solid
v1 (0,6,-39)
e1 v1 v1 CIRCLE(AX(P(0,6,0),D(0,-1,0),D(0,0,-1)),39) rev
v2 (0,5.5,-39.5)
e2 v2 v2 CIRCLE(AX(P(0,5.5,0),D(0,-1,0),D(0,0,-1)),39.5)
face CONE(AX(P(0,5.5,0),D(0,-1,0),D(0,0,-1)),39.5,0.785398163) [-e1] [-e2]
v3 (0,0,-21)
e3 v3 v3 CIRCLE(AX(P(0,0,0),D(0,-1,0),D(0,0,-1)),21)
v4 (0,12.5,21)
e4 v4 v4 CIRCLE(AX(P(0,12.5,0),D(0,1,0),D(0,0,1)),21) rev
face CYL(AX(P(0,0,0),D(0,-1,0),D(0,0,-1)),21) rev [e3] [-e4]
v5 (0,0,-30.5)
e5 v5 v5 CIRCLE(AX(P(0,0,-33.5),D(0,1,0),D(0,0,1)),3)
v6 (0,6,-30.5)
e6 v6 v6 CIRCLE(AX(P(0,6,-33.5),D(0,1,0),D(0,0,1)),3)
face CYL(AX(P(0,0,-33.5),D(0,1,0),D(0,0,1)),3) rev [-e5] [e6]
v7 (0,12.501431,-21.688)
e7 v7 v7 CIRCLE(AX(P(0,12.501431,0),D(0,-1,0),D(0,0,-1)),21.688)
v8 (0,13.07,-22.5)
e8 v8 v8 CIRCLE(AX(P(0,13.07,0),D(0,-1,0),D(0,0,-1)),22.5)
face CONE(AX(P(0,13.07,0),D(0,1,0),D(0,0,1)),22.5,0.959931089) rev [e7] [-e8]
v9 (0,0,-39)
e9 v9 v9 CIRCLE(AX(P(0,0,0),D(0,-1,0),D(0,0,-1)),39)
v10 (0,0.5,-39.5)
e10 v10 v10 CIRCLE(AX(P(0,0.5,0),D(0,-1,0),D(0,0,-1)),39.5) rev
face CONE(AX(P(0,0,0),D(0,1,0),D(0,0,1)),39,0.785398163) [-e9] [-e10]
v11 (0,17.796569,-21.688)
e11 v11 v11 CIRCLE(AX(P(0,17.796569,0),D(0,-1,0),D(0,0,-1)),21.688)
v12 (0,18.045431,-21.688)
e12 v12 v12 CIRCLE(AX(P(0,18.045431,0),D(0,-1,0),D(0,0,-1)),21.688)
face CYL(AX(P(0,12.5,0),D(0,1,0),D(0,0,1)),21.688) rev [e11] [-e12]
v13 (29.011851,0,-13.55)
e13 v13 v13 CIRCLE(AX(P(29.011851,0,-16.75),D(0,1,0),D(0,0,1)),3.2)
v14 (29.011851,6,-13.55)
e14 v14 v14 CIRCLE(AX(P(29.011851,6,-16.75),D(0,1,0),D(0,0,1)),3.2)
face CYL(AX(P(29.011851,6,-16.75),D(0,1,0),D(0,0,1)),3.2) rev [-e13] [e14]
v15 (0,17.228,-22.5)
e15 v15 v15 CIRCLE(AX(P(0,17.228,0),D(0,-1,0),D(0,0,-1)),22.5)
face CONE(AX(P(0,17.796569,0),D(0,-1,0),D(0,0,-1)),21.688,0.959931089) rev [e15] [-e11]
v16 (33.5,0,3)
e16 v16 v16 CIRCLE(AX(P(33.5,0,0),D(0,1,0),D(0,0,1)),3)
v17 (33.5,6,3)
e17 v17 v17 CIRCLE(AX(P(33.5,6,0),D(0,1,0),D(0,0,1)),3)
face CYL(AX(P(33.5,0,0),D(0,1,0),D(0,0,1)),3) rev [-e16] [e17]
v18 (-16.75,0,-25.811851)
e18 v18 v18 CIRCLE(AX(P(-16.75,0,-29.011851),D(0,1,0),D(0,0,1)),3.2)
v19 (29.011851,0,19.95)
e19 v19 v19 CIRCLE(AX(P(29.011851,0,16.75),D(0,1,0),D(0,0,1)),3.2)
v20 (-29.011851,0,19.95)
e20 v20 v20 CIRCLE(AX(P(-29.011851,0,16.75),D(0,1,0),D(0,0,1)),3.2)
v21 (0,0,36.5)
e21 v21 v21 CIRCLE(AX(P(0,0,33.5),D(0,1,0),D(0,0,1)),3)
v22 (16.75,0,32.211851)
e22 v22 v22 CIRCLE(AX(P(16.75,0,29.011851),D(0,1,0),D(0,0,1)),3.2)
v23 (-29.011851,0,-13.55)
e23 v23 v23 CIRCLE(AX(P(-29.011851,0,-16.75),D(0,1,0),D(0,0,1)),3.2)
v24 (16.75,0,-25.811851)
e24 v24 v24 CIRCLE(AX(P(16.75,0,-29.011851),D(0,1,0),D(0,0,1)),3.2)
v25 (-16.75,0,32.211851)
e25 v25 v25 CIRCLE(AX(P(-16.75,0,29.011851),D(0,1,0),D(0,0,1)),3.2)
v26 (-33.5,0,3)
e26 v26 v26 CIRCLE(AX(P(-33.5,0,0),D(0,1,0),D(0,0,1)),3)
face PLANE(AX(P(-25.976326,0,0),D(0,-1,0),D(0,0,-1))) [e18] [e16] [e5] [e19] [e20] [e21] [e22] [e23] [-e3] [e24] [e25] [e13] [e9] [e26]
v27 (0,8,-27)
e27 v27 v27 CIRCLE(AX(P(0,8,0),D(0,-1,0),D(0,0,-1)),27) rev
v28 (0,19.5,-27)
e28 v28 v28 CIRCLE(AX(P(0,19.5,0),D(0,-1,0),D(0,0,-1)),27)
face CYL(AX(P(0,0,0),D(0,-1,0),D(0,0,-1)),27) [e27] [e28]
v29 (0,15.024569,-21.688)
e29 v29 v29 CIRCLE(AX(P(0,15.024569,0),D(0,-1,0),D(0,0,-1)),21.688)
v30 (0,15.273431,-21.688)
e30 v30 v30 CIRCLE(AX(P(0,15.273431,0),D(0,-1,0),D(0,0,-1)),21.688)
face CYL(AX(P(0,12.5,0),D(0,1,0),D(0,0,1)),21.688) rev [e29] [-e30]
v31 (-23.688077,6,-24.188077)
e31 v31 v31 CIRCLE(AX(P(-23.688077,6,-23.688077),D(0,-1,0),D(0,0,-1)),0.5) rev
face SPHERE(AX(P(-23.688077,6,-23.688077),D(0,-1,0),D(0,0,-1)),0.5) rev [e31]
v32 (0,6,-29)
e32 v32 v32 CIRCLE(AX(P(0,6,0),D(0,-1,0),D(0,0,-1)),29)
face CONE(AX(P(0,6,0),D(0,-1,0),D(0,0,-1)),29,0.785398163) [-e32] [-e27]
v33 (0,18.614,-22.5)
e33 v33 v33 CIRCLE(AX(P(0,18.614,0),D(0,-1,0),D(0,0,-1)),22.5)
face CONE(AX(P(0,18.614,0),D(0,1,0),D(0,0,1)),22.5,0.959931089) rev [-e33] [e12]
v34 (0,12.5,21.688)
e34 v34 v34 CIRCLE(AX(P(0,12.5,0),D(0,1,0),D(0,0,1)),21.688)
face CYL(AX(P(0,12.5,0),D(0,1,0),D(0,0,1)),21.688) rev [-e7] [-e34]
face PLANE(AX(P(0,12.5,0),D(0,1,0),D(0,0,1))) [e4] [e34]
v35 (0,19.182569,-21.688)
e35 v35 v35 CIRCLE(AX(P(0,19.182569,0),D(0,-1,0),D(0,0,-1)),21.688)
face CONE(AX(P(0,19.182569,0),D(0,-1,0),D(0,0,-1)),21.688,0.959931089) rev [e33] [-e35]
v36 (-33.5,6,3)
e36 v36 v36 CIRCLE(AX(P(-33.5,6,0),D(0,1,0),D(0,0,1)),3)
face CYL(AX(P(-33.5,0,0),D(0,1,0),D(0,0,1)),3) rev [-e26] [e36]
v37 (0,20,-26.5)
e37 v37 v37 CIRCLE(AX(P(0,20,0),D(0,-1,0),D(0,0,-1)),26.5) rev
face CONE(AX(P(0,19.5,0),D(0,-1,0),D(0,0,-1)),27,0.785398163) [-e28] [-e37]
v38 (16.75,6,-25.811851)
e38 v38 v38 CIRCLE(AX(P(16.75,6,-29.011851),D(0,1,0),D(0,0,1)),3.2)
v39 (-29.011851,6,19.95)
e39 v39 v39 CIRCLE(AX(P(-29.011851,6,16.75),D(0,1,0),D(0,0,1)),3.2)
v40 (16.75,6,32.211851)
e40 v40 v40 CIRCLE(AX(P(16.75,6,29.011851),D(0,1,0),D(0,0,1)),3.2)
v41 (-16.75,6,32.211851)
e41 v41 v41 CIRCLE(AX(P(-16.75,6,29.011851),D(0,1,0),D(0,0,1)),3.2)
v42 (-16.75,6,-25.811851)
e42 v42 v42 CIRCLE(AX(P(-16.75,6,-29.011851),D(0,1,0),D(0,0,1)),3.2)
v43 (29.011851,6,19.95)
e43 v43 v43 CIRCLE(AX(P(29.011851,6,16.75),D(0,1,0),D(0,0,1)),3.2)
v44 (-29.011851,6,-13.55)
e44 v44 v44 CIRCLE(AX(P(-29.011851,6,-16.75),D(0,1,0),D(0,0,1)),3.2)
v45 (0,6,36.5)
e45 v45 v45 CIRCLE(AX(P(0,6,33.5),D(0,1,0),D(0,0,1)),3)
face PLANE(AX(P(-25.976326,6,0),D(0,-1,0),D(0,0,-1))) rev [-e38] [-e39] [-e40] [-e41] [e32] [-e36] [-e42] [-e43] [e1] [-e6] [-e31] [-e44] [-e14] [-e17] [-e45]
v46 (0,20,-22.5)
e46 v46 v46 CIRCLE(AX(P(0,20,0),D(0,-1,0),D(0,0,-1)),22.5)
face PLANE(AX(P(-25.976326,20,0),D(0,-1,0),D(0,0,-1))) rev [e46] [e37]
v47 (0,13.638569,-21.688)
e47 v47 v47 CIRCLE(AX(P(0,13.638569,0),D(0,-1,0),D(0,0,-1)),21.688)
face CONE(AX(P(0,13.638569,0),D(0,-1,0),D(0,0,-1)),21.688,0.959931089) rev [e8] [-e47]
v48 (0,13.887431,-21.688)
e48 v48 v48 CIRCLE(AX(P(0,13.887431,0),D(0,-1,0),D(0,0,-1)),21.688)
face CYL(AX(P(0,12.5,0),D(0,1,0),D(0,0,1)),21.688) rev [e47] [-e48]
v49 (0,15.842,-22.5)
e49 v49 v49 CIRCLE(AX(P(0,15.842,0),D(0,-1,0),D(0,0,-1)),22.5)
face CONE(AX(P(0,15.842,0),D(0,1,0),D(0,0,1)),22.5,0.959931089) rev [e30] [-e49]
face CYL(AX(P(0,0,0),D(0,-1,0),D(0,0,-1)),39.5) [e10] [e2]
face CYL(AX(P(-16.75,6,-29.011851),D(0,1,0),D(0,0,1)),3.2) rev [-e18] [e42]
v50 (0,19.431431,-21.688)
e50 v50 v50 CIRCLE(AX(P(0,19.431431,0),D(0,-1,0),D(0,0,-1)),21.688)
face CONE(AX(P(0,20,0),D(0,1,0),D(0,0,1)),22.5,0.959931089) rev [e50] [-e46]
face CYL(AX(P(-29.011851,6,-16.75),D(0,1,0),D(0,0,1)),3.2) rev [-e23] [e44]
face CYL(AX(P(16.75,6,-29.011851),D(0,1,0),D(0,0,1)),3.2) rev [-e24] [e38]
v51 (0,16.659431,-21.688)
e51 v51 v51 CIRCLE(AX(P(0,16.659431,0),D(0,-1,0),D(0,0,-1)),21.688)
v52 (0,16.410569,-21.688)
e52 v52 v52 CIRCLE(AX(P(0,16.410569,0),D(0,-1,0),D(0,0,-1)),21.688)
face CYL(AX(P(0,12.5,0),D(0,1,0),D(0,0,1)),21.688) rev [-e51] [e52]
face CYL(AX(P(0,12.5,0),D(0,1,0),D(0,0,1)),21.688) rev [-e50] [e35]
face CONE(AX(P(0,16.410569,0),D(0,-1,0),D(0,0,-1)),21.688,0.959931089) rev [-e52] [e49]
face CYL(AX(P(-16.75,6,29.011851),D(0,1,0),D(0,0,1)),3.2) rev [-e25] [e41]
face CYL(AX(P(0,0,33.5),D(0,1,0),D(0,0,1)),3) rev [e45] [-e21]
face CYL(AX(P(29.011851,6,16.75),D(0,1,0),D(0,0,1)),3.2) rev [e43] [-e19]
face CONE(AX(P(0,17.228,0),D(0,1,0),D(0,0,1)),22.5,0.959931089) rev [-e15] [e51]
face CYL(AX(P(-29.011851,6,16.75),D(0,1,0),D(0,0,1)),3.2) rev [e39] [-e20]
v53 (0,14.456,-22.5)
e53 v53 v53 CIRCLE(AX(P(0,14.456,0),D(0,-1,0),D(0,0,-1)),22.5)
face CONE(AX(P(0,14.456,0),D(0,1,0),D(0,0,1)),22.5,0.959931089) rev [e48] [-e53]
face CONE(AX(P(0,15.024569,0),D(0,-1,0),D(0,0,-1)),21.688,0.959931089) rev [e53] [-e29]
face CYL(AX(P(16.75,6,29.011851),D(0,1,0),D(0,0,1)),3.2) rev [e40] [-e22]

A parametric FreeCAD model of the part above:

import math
import FreeCAD as App
import Part
import Sketcher
Q = App.Units.Quantity


def edges_at(feature, points):
    """Names of the edges that pass closest to the given points."""
    edges = feature.Shape.Edges
    near = lambda p: min(range(len(edges)), key=lambda i: edges[i].distToShape(Part.Vertex(*p))[0])
    return sorted({f"Edge{near(p) + 1}" for p in points})


def add_polygon(sketch, points):
    """Adds a closed chain of lines whose ends are joined by coincident constraints."""
    first, n = sketch.GeometryCount, len(points)
    for a, b in zip(points, points[1:] + points[:1]):
        sketch.addGeometry(Part.LineSegment(App.Vector(*a, 0), App.Vector(*b, 0)), False)
    for i in range(n):
        sketch.addConstraint(Sketcher.Constraint("Coincident", first + i, 2, first + (i + 1) % n, 1))

doc = App.newDocument("Part")
body = doc.addObject("PartDesign::Body", "Body")

# Sketch on XY plane
sketch1 = body.newObject("Sketcher::SketchObject", "Sketch")
sketch1.AttachmentSupport = (doc.getObject("XY_Plane"), [""])
sketch1.MapMode = "FlatFace"
add_polygon(sketch1, [(-40, 0), (-21, 0), (-21, 20), (-27, 20), (-27, 6), (-40, 6)])  # lines 0-5
sketch1.addConstraint(Sketcher.Constraint("Horizontal", 0))
sketch1.addConstraint(Sketcher.Constraint("Vertical", 1))
sketch1.addConstraint(Sketcher.Constraint("Horizontal", 2))
sketch1.addConstraint(Sketcher.Constraint("Vertical", 3))
sketch1.addConstraint(Sketcher.Constraint("Horizontal", 4))
sketch1.addConstraint(Sketcher.Constraint("Vertical", 5))
sketch1.addConstraint(Sketcher.Constraint("PointOnObject", 0, 2, -1))
sketch1.addConstraint(Sketcher.Constraint("Equal", 2, 5))
sketch1.addConstraint(Sketcher.Constraint("DistanceX", 2, 2, 2, 1, Q("6 mm")))
sketch1.addConstraint(Sketcher.Constraint("DistanceY", 1, 1, 1, 2, Q("20 mm")))
sketch1.addConstraint(Sketcher.Constraint("DistanceX", 0, 1, 0, 2, Q("18.5 mm")))
sketch1.addConstraint(Sketcher.Constraint("DistanceX", 0, 2, -1, 1, Q("21 mm")))
revolution = body.newObject("PartDesign::Revolution", "Revolution")
revolution.Profile = sketch1
revolution.ReferenceAxis = (sketch1, ["V_Axis"])
revolution.Angle = 360
doc.recompute()

chamfer = body.newObject("PartDesign::Chamfer", "Chamfer")
chamfer.Base = (revolution, edges_at(revolution, [(27, 6, 0)]))
chamfer.Size = 2
doc.recompute()

chamfer2 = body.newObject("PartDesign::Chamfer", "Chamfer001")
chamfer2.Base = (chamfer, edges_at(chamfer, [(39.5, 6, 0), (27, 20, 0), (39.5, 0, 0)]))
chamfer2.Size = 0.5

# Sketch on XZ plane
sketch2 = body.newObject("Sketcher::SketchObject", "Sketch001")
sketch2.AttachmentSupport = (doc.getObject("XZ_Plane"), [""])
sketch2.MapMode = "FlatFace"
sketch2.AttachmentOffset = App.Placement(App.Vector(0, 0, -6), App.Rotation())
sketch2.addGeometry(Part.Circle(App.Vector(-16.8, 29, 0), App.Vector(0, 0, 1), 3.2), False)
sketch2.addGeometry(Part.Circle(App.Vector(-29, -16.8, 0), App.Vector(0, 0, 1), 3.2), False)
sketch2.addGeometry(Part.Circle(App.Vector(16.8, -29, 0), App.Vector(0, 0, 1), 3.2), False)
sketch2.addGeometry(Part.Circle(App.Vector(29, 16.8, 0), App.Vector(0, 0, 1), 3.2), False)
sketch2.addGeometry(Part.Circle(App.Vector(-29, 16.8, 0), App.Vector(0, 0, 1), 3.2), False)
sketch2.addGeometry(Part.Circle(App.Vector(-16.8, -29, 0), App.Vector(0, 0, 1), 3.2), False)
sketch2.addGeometry(Part.Circle(App.Vector(29, -16.8, 0), App.Vector(0, 0, 1), 3.2), False)
sketch2.addGeometry(Part.Circle(App.Vector(16.8, 29, 0), App.Vector(0, 0, 1), 3.2), False)
sketch2.addConstraint(Sketcher.Constraint("Equal", 0, 1))
sketch2.addConstraint(Sketcher.Constraint("Equal", 1, 2))
sketch2.addConstraint(Sketcher.Constraint("Equal", 2, 3))
sketch2.addConstraint(Sketcher.Constraint("Equal", 3, 4))
sketch2.addConstraint(Sketcher.Constraint("Equal", 4, 5))
sketch2.addConstraint(Sketcher.Constraint("Equal", 5, 6))
sketch2.addConstraint(Sketcher.Constraint("Equal", 6, 7))
sketch2.addConstraint(Sketcher.Constraint("Symmetric", 0, 3, 2, 3, -1, 1))
sketch2.addConstraint(Sketcher.Constraint("Symmetric", 1, 3, 3, 3, -1, 1))
sketch2.addConstraint(Sketcher.Constraint("Symmetric", 4, 3, 6, 3, -1, 1))
sketch2.addConstraint(Sketcher.Constraint("Symmetric", 5, 3, 7, 3, -1, 1))
sketch2.addConstraint(Sketcher.Constraint("Symmetric", 3, 3, 4, 3, -2))
sketch2.addConstraint(Sketcher.Constraint("Symmetric", 2, 3, 5, 3, -2))
sketch2.addConstraint(Sketcher.Constraint("Diameter", 0, Q("6.4 mm")))
sketch2.addConstraint(Sketcher.Constraint("DistanceX", 0, 3, 2, 3, Q("33.5 mm")))
sketch2.addConstraint(Sketcher.Constraint("DistanceY", 1, 3, 3, 3, Q("33.5 mm")))
sketch2.addConstraint(Sketcher.Constraint("DistanceY", -1, 1, 0, 3, Q("29.011851 mm")))
sketch2.addConstraint(Sketcher.Constraint("DistanceX", 1, 3, -1, 1, Q("29.011851 mm")))
doc.recompute()
hole = body.newObject("PartDesign::Hole", "Hole")
hole.Profile = sketch2
hole.ThreadType = "None"
hole.Diameter = 6.4
hole.DepthType = "ThroughAll"
hole.Reversed = True

# Sketch on XZ plane
sketch3 = body.newObject("Sketcher::SketchObject", "Sketch002")
sketch3.AttachmentSupport = (doc.getObject("XZ_Plane"), [""])
sketch3.MapMode = "FlatFace"
sketch3.AttachmentOffset = App.Placement(App.Vector(0, 0, -6), App.Rotation())
sketch3.addGeometry(Part.Circle(App.Vector(-33.5, 0, 0), App.Vector(0, 0, 1), 3), False)
sketch3.addGeometry(Part.Circle(App.Vector(0, -33.5, 0), App.Vector(0, 0, 1), 3), False)
sketch3.addGeometry(Part.Circle(App.Vector(33.5, 0, 0), App.Vector(0, 0, 1), 3), False)
sketch3.addGeometry(Part.Circle(App.Vector(0, 33.5, 0), App.Vector(0, 0, 1), 3), False)
sketch3.addConstraint(Sketcher.Constraint("Equal", 0, 1))
sketch3.addConstraint(Sketcher.Constraint("Equal", 1, 2))
sketch3.addConstraint(Sketcher.Constraint("Equal", 2, 3))
sketch3.addConstraint(Sketcher.Constraint("Symmetric", 0, 3, 2, 3, -1, 1))
sketch3.addConstraint(Sketcher.Constraint("Symmetric", 1, 3, 3, 3, -1, 1))
sketch3.addConstraint(Sketcher.Constraint("PointOnObject", 0, 3, -1))
sketch3.addConstraint(Sketcher.Constraint("PointOnObject", 1, 3, -2))
sketch3.addConstraint(Sketcher.Constraint("Diameter", 0, Q("6 mm")))
sketch3.addConstraint(Sketcher.Constraint("DistanceX", 0, 3, 2, 3, Q("67 mm")))
sketch3.addConstraint(Sketcher.Constraint("DistanceY", 1, 3, 3, 3, Q("67 mm")))
pocket1 = body.newObject("PartDesign::Pocket", "Pocket")
pocket1.Profile = sketch3
pocket1.Type = "ThroughAll"
pocket1.Reversed = True

# Sketch on XZ plane
sketch4 = body.newObject("Sketcher::SketchObject", "Sketch003")
sketch4.AttachmentSupport = (doc.getObject("XZ_Plane"), [""])
sketch4.MapMode = "FlatFace"
sketch4.AttachmentOffset = App.Placement(App.Vector(0, 0, -6), App.Rotation())
sketch4.addGeometry(Part.LineSegment(App.Vector(-23.3, -23.3, 0), App.Vector(-24, -24, 0)), False)
sketch4.addGeometry(Part.ArcOfCircle(Part.Circle(App.Vector(-23.7, -23.7, 0), App.Vector(0, 0, 1), 0.5), math.radians(45), math.radians(225)), False)
sketch4.addGeometry(Part.LineSegment(App.Vector(-23.3, -23.3, 0), App.Vector(-24, -24, 0)), True)  # axis
sketch4.addConstraint(Sketcher.Constraint("Coincident", 0, 1, 1, 1))
sketch4.addConstraint(Sketcher.Constraint("Coincident", 1, 2, 0, 2))
sketch4.addConstraint(Sketcher.Constraint("Coincident", 2, 1, 0, 1))
sketch4.addConstraint(Sketcher.Constraint("Coincident", 2, 2, 1, 2))
sketch4.addConstraint(Sketcher.Constraint("Radius", 1, Q("0.5 mm")))
sketch4.addConstraint(Sketcher.Constraint("Angle", 0, Q("-135 deg")))
sketch4.addConstraint(Sketcher.Constraint("DistanceX", 1, 2, -1, 1, Q("24.041631 mm")))
sketch4.addConstraint(Sketcher.Constraint("DistanceY", 1, 2, -1, 1, Q("24.041631 mm")))
sketch4.addConstraint(Sketcher.Constraint("DistanceX", 1, 3, -1, 1, Q("23.688077 mm")))
groove = body.newObject("PartDesign::Groove", "Groove")
groove.Profile = sketch4
groove.ReferenceAxis = (sketch4, ["Axis0"])
groove.Angle = 360

# Sketch on XZ plane
sketch5 = body.newObject("Sketcher::SketchObject", "Sketch004")
sketch5.AttachmentSupport = (doc.getObject("XZ_Plane"), [""])
sketch5.MapMode = "FlatFace"
sketch5.AttachmentOffset = App.Placement(App.Vector(0, 0, -20), App.Rotation())
sketch5.addGeometry(Part.Circle(App.Vector(0, 0, 0), App.Vector(0, 0, 1), 22), False)
sketch5.addConstraint(Sketcher.Constraint("Coincident", 0, 3, -1, 1))
sketch5.addConstraint(Sketcher.Constraint("Diameter", 0, Q("43.376 mm")))
pocket2 = body.newObject("PartDesign::Pocket", "Pocket001")
pocket2.Profile = sketch5
pocket2.Length = 7.5
pocket2.Reversed = True

# Sketch on XY plane
sketch6 = body.newObject("Sketcher::SketchObject", "Sketch005")
sketch6.AttachmentSupport = (doc.getObject("XY_Plane"), [""])
sketch6.MapMode = "FlatFace"
add_polygon(sketch6, [(-21.7, 20.6), (-22.5, 20), (-21.7, 19.4), (-15, 19.4), (-15, 20.6)])  # lines 0-4
sketch6.addConstraint(Sketcher.Constraint("Horizontal", 2))
sketch6.addConstraint(Sketcher.Constraint("Vertical", 3))
sketch6.addConstraint(Sketcher.Constraint("Horizontal", 4))
sketch6.addConstraint(Sketcher.Constraint("Vertical", 1, 2, 4, 2))
sketch6.addConstraint(Sketcher.Constraint("Equal", 0, 1))
sketch6.addConstraint(Sketcher.Constraint("Angle", 0, Q("-145 deg")))
sketch6.addConstraint(Sketcher.Constraint("DistanceY", -1, 1, 0, 2, Q("20 mm")))
sketch6.addConstraint(Sketcher.Constraint("DistanceX", 2, 2, -1, 1, Q("15 mm")))
sketch6.addConstraint(Sketcher.Constraint("DistanceX", 0, 2, -1, 1, Q("22.5 mm")))
sketch6.addConstraint(Sketcher.Constraint("DistanceX", 2, 1, 2, 2, Q("6.688 mm")))
groove2 = body.newObject("PartDesign::Groove", "Groove001")
groove2.Profile = sketch6
groove2.ReferenceAxis = (sketch6, ["V_Axis"])
groove2.Angle = 360
doc.recompute()

linearpattern = body.newObject("PartDesign::LinearPattern", "LinearPattern")
linearpattern.Originals = [groove2]
linearpattern.Direction = (doc.getObject("Y_Axis"), [""])
linearpattern.Mode = "offset"
linearpattern.Offset = 1.386
linearpattern.Occurrences = 6
linearpattern.Reversed = True
body.Tip = linearpattern

doc.recompute()
